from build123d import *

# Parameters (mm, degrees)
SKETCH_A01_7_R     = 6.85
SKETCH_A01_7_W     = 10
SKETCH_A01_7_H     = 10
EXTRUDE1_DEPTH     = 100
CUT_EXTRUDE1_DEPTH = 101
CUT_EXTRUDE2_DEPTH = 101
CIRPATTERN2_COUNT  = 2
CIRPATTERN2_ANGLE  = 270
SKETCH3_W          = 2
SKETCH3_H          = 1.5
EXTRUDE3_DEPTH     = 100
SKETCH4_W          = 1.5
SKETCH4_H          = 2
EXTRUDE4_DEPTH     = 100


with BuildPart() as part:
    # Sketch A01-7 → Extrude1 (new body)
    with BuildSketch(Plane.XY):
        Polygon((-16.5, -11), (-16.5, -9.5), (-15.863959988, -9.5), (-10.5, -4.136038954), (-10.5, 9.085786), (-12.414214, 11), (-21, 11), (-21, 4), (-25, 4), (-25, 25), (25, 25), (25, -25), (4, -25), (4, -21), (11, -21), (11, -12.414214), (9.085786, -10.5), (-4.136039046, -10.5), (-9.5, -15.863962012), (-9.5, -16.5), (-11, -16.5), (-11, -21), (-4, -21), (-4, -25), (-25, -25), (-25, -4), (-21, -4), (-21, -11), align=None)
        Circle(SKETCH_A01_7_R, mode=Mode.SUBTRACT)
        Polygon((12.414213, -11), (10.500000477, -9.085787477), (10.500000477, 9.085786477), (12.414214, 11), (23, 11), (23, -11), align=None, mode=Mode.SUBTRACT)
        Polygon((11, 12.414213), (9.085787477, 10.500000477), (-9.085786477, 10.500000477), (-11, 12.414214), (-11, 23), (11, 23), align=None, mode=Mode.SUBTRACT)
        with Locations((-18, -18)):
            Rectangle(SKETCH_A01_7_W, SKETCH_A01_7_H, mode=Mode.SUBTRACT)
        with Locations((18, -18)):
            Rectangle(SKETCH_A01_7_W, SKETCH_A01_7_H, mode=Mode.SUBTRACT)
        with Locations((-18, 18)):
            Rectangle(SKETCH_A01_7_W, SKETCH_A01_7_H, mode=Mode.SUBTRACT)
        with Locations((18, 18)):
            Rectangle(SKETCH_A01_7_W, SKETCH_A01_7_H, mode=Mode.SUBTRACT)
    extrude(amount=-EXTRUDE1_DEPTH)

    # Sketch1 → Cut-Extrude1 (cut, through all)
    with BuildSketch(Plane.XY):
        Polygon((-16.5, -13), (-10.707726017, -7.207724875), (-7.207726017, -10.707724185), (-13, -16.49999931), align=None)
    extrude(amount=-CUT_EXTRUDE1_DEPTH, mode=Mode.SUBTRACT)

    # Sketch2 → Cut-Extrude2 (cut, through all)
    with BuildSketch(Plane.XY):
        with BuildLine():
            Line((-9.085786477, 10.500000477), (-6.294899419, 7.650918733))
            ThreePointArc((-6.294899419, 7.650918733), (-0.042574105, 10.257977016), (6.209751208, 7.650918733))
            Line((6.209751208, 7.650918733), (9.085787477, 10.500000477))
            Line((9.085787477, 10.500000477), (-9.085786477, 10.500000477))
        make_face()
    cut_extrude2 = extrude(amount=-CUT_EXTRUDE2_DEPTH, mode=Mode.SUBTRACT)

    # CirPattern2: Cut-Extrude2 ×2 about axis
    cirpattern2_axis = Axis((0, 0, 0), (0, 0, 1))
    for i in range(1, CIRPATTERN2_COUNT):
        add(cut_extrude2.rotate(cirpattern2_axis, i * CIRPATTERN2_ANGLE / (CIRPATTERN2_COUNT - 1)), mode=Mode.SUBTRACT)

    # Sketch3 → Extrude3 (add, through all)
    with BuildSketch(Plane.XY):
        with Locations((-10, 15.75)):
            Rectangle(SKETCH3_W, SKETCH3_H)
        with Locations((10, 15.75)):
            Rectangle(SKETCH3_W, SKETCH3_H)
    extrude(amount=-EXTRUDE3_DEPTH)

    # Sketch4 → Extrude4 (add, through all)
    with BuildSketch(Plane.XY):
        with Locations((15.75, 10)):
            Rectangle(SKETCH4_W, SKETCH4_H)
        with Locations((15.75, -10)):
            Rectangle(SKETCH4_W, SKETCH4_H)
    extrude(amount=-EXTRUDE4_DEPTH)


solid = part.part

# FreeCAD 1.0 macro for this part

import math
import FreeCAD as App
import Part
import Sketcher
from FreeCAD import Vector
Q = App.Units.Quantity

doc = App.newDocument("Part")
params = doc.addObject("Spreadsheet::Sheet", "Params")
for row, (alias, value) in enumerate([
    ("sketch1_diameter", "13.7 mm"),
    ("sketch1_width", "4 mm"),
    ("sketch1_width2", "21 mm"),
    ("sketch1_width3", "7 mm"),
    ("sketch1_width4", "50 mm"),
    ("pad1_length", "100 mm"),
    ("sketch4_width", "2 mm"),
    ("sketch4_height", "1.5 mm"),
    ("pad2_length", "100 mm"),
    ("sketch5_height", "2 mm"),
    ("sketch5_width", "1.5 mm"),
    ("pad3_length", "100 mm"),
], start=1):
    params.set(f"A{row}", alias)
    params.set(f"B{row}", "=" + value)
    params.setAlias(f"B{row}", alias)

body = doc.addObject("PartDesign::Body", "Body")

sketch1 = doc.addObject("Sketcher::SketchObject", "Sketch")
body.addObject(sketch1)
sketch1.AttachmentSupport = (doc.XY_Plane, [""])
sketch1.MapMode = "FlatFace"
sketch1.addGeometry([
    Part.LineSegment(Vector(-16.5, -9.5, 0), Vector(-16.5, -11, 0)),
    Part.LineSegment(Vector(-16.5, -11, 0), Vector(-21, -11, 0)),
    Part.LineSegment(Vector(-21, -11, 0), Vector(-21, -4, 0)),
    Part.LineSegment(Vector(-21, -4, 0), Vector(-25, -4, 0)),
    Part.LineSegment(Vector(-25, -4, 0), Vector(-25, -25, 0)),
    Part.LineSegment(Vector(-25, -25, 0), Vector(-4, -25, 0)),
    Part.LineSegment(Vector(-4, -25, 0), Vector(-4, -21, 0)),
    Part.LineSegment(Vector(-4, -21, 0), Vector(-11, -21, 0)),
    Part.LineSegment(Vector(-11, -21, 0), Vector(-11, -16.5, 0)),
    Part.LineSegment(Vector(-11, -16.5, 0), Vector(-9.5, -16.5, 0)),
    Part.LineSegment(Vector(-9.5, -16.5, 0), Vector(-9.5, -15.863962, 0)),
    Part.LineSegment(Vector(-9.5, -15.863962, 0), Vector(-4.136039, -10.5, 0)),
    Part.LineSegment(Vector(-4.136039, -10.5, 0), Vector(9.085786, -10.5, 0)),
    Part.LineSegment(Vector(9.085786, -10.5, 0), Vector(11, -12.414214, 0)),
    Part.LineSegment(Vector(11, -12.414214, 0), Vector(11, -21, 0)),
    Part.LineSegment(Vector(11, -21, 0), Vector(4, -21, 0)),
    Part.LineSegment(Vector(4, -21, 0), Vector(4, -25, 0)),
    Part.LineSegment(Vector(4, -25, 0), Vector(25, -25, 0)),
    Part.LineSegment(Vector(25, -25, 0), Vector(25, 25, 0)),
    Part.LineSegment(Vector(25, 25, 0), Vector(-25, 25, 0)),
    Part.LineSegment(Vector(-25, 25, 0), Vector(-25, 4, 0)),
    Part.LineSegment(Vector(-25, 4, 0), Vector(-21, 4, 0)),
    Part.LineSegment(Vector(-21, 4, 0), Vector(-21, 11, 0)),
    Part.LineSegment(Vector(-21, 11, 0), Vector(-12.414214, 11, 0)),
    Part.LineSegment(Vector(-12.414214, 11, 0), Vector(-10.5, 9.085786, 0)),
    Part.LineSegment(Vector(-10.5, 9.085786, 0), Vector(-10.5, -4.136039, 0)),
    Part.LineSegment(Vector(-10.5, -4.136039, 0), Vector(-15.86396, -9.5, 0)),
    Part.LineSegment(Vector(-15.86396, -9.5, 0), Vector(-16.5, -9.5, 0)),
    Part.LineSegment(Vector(13, -23, 0), Vector(13, -13, 0)),
    Part.LineSegment(Vector(13, -13, 0), Vector(23, -13, 0)),
    Part.LineSegment(Vector(23, -13, 0), Vector(23, -23, 0)),
    Part.LineSegment(Vector(23, -23, 0), Vector(13, -23, 0)),
    Part.LineSegment(Vector(-23, -23, 0), Vector(-23, -13, 0)),
    Part.LineSegment(Vector(-23, -13, 0), Vector(-13, -13, 0)),
    Part.LineSegment(Vector(-13, -13, 0), Vector(-13, -23, 0)),
    Part.LineSegment(Vector(-13, -23, 0), Vector(-23, -23, 0)),
    Part.LineSegment(Vector(12.414213, -11, 0), Vector(10.5, -9.085787, 0)),
    Part.LineSegment(Vector(10.5, -9.085787, 0), Vector(10.5, 9.085786, 0)),
    Part.LineSegment(Vector(10.5, 9.085786, 0), Vector(12.414214, 11, 0)),
    Part.LineSegment(Vector(12.414214, 11, 0), Vector(23, 11, 0)),
    Part.LineSegment(Vector(23, 11, 0), Vector(23, -11, 0)),
    Part.LineSegment(Vector(23, -11, 0), Vector(12.414213, -11, 0)),
    Part.LineSegment(Vector(13, 13, 0), Vector(13, 23, 0)),
    Part.LineSegment(Vector(13, 23, 0), Vector(23, 23, 0)),
    Part.LineSegment(Vector(23, 23, 0), Vector(23, 13, 0)),
    Part.LineSegment(Vector(23, 13, 0), Vector(13, 13, 0)),
    Part.Circle(Vector(0, 0, 0), Vector(0, 0, 1), 6.85),
    Part.LineSegment(Vector(11, 12.414213, 0), Vector(9.085787, 10.5, 0)),
    Part.LineSegment(Vector(9.085787, 10.5, 0), Vector(-9.085786, 10.5, 0)),
    Part.LineSegment(Vector(-9.085786, 10.5, 0), Vector(-11, 12.414214, 0)),
    Part.LineSegment(Vector(-11, 12.414214, 0), Vector(-11, 23, 0)),
    Part.LineSegment(Vector(-11, 23, 0), Vector(11, 23, 0)),
    Part.LineSegment(Vector(11, 23, 0), Vector(11, 12.414213, 0)),
    Part.LineSegment(Vector(-23, 13, 0), Vector(-23, 23, 0)),
    Part.LineSegment(Vector(-23, 23, 0), Vector(-13, 23, 0)),
    Part.LineSegment(Vector(-13, 23, 0), Vector(-13, 13, 0)),
    Part.LineSegment(Vector(-13, 13, 0), Vector(-23, 13, 0)),
], False)
sketch1.addConstraint([
    Sketcher.Constraint("Coincident", 0, 2, 1, 1),
    Sketcher.Constraint("Coincident", 1, 2, 2, 1),
    Sketcher.Constraint("Coincident", 2, 2, 3, 1),
    Sketcher.Constraint("Coincident", 3, 2, 4, 1),
    Sketcher.Constraint("Coincident", 4, 2, 5, 1),
    Sketcher.Constraint("Coincident", 5, 2, 6, 1),
    Sketcher.Constraint("Coincident", 6, 2, 7, 1),
    Sketcher.Constraint("Coincident", 7, 2, 8, 1),
    Sketcher.Constraint("Coincident", 8, 2, 9, 1),
    Sketcher.Constraint("Coincident", 9, 2, 10, 1),
    Sketcher.Constraint("Coincident", 10, 2, 11, 1),
    Sketcher.Constraint("Coincident", 11, 2, 12, 1),
    Sketcher.Constraint("Coincident", 12, 2, 13, 1),
    Sketcher.Constraint("Coincident", 13, 2, 14, 1),
    Sketcher.Constraint("Coincident", 14, 2, 15, 1),
    Sketcher.Constraint("Coincident", 15, 2, 16, 1),
    Sketcher.Constraint("Coincident", 16, 2, 17, 1),
    Sketcher.Constraint("Coincident", 17, 2, 18, 1),
    Sketcher.Constraint("Coincident", 18, 2, 19, 1),
    Sketcher.Constraint("Coincident", 19, 2, 20, 1),
    Sketcher.Constraint("Coincident", 20, 2, 21, 1),
    Sketcher.Constraint("Coincident", 21, 2, 22, 1),
    Sketcher.Constraint("Coincident", 22, 2, 23, 1),
    Sketcher.Constraint("Coincident", 23, 2, 24, 1),
    Sketcher.Constraint("Coincident", 24, 2, 25, 1),
    Sketcher.Constraint("Coincident", 25, 2, 26, 1),
    Sketcher.Constraint("Coincident", 26, 2, 27, 1),
    Sketcher.Constraint("Coincident", 27, 2, 0, 1),
    Sketcher.Constraint("Coincident", 28, 2, 29, 1),
    Sketcher.Constraint("Coincident", 29, 2, 30, 1),
    Sketcher.Constraint("Coincident", 30, 2, 31, 1),
    Sketcher.Constraint("Coincident", 31, 2, 28, 1),
    Sketcher.Constraint("Coincident", 32, 2, 33, 1),
    Sketcher.Constraint("Coincident", 33, 2, 34, 1),
    Sketcher.Constraint("Coincident", 34, 2, 35, 1),
    Sketcher.Constraint("Coincident", 35, 2, 32, 1),
    Sketcher.Constraint("Coincident", 36, 2, 37, 1),
    Sketcher.Constraint("Coincident", 37, 2, 38, 1),
    Sketcher.Constraint("Coincident", 38, 2, 39, 1),
    Sketcher.Constraint("Coincident", 39, 2, 40, 1),
    Sketcher.Constraint("Coincident", 40, 2, 41, 1),
    Sketcher.Constraint("Coincident", 41, 2, 36, 1),
    Sketcher.Constraint("Coincident", 42, 2, 43, 1),
    Sketcher.Constraint("Coincident", 43, 2, 44, 1),
    Sketcher.Constraint("Coincident", 44, 2, 45, 1),
    Sketcher.Constraint("Coincident", 45, 2, 42, 1),
    Sketcher.Constraint("Coincident", 47, 2, 48, 1),
    Sketcher.Constraint("Coincident", 48, 2, 49, 1),
    Sketcher.Constraint("Coincident", 49, 2, 50, 1),
    Sketcher.Constraint("Coincident", 50, 2, 51, 1),
    Sketcher.Constraint("Coincident", 51, 2, 52, 1),
    Sketcher.Constraint("Coincident", 52, 2, 47, 1),
    Sketcher.Constraint("Coincident", 53, 2, 54, 1),
    Sketcher.Constraint("Coincident", 54, 2, 55, 1),
    Sketcher.Constraint("Coincident", 55, 2, 56, 1),
    Sketcher.Constraint("Coincident", 56, 2, 53, 1),
    Sketcher.Constraint("Vertical", 0),
    Sketcher.Constraint("Horizontal", 1),
    Sketcher.Constraint("Vertical", 2),
    Sketcher.Constraint("Horizontal", 3),
    Sketcher.Constraint("Vertical", 4),
    Sketcher.Constraint("Horizontal", 5),
    Sketcher.Constraint("Vertical", 6),
    Sketcher.Constraint("Horizontal", 7),
    Sketcher.Constraint("Vertical", 8),
    Sketcher.Constraint("Horizontal", 9),
    Sketcher.Constraint("Vertical", 10),
    Sketcher.Constraint("Horizontal", 12),
    Sketcher.Constraint("Vertical", 14),
    Sketcher.Constraint("Horizontal", 15),
    Sketcher.Constraint("Vertical", 16),
    Sketcher.Constraint("Horizontal", 17),
    Sketcher.Constraint("Vertical", 18),
    Sketcher.Constraint("Horizontal", 19),
    Sketcher.Constraint("Vertical", 20),
    Sketcher.Constraint("Horizontal", 21),
    Sketcher.Constraint("Vertical", 22),
    Sketcher.Constraint("Horizontal", 23),
    Sketcher.Constraint("Vertical", 25),
    Sketcher.Constraint("Horizontal", 27),
    Sketcher.Constraint("Vertical", 28),
    Sketcher.Constraint("Horizontal", 29),
    Sketcher.Constraint("Vertical", 30),
    Sketcher.Constraint("Horizontal", 31),
    Sketcher.Constraint("Vertical", 32),
    Sketcher.Constraint("Horizontal", 33),
    Sketcher.Constraint("Vertical", 34),
    Sketcher.Constraint("Horizontal", 35),
    Sketcher.Constraint("Vertical", 37),
    Sketcher.Constraint("Horizontal", 39),
    Sketcher.Constraint("Vertical", 40),
    Sketcher.Constraint("Horizontal", 41),
    Sketcher.Constraint("Vertical", 42),
    Sketcher.Constraint("Horizontal", 43),
    Sketcher.Constraint("Vertical", 44),
    Sketcher.Constraint("Horizontal", 45),
    Sketcher.Constraint("Horizontal", 48),
    Sketcher.Constraint("Vertical", 50),
    Sketcher.Constraint("Horizontal", 51),
    Sketcher.Constraint("Vertical", 52),
    Sketcher.Constraint("Vertical", 53),
    Sketcher.Constraint("Horizontal", 54),
    Sketcher.Constraint("Vertical", 55),
    Sketcher.Constraint("Horizontal", 56),
    Sketcher.Constraint("Coincident", 46, 3, -1, 1),
    Sketcher.Constraint("Symmetric", 4, 2, 18, 2, -1, 1),
    Sketcher.Constraint("Symmetric", 17, 2, 19, 2, -1, 1),
    Sketcher.Constraint("Symmetric", 24, 2, 36, 2, -1, 1),
    Sketcher.Constraint("Symmetric", 23, 2, 41, 2, -1, 1),
    Sketcher.Constraint("Symmetric", 34, 2, 42, 2, -1, 1),
    Sketcher.Constraint("Symmetric", 32, 2, 44, 2, -1, 1),
    Sketcher.Constraint("Symmetric", 12, 2, 48, 2, -1, 1),
    Sketcher.Constraint("Symmetric", 13, 2, 49, 2, -1, 1),
    Sketcher.Constraint("Symmetric", 30, 2, 53, 2, -1, 1),
    Sketcher.Constraint("Symmetric", 28, 2, 55, 2, -1, 1),
    Sketcher.Constraint("Symmetric", 7, 2, 14, 2, -2),
    Sketcher.Constraint("Symmetric", 29, 2, 32, 2, -2),
    Sketcher.Constraint("Symmetric", 31, 2, 34, 2, -2),
    Sketcher.Constraint("Symmetric", 23, 2, 38, 2, -2),
    Sketcher.Constraint("Symmetric", 49, 2, 52, 2, -2),
    Sketcher.Constraint("Symmetric", 2, 2, 21, 2, -1),
    Sketcher.Constraint("Perpendicular", 11, 13),
    Sketcher.Constraint("Parallel", 13, 24),
    Sketcher.Constraint("Perpendicular", 24, 26),
    Sketcher.Constraint("Perpendicular", 36, 38),
    Sketcher.Constraint("Parallel", 38, 47),
    Sketcher.Constraint("Horizontal", 24, 2, 37, 2),
    Sketcher.Constraint("Horizontal", 1, 2, 40, 2),
    Sketcher.Constraint("Horizontal", 43, 2, 50, 2),
    Sketcher.Constraint("Vertical", 30, 2, 39, 2),
    Sketcher.Constraint("Equal", 7, 15),
    Sketcher.Constraint("Equal", 9, 0),
    Sketcher.Constraint("Equal", 15, 2),
    Sketcher.Constraint("Equal", 17, 4),
    Sketcher.Constraint("Equal", 21, 6),
    Sketcher.Constraint("Equal", 1, 8),
    Sketcher.Constraint("Equal", 23, 14),
    Sketcher.Constraint("Equal", 19, 18),
    Sketcher.Constraint("Equal", 12, 25),
    Sketcher.Constraint("Equal", 56, 28),
    Sketcher.Constraint("Equal", 48, 37),
    Sketcher.Constraint("Equal", 41, 50),
    Sketcher.Constraint("Diameter", 46, Q("13.7 mm")),
    Sketcher.Constraint("DistanceX", 3, 2, 3, 1, Q("4 mm")),
    Sketcher.Constraint("DistanceX", 5, 1, 5, 2, Q("21 mm")),
    Sketcher.Constraint("DistanceX", 7, 2, 7, 1, Q("7 mm")),
    Sketcher.Constraint("DistanceX", 19, 2, 19, 1, Q("50 mm")),
    Sketcher.Constraint("DistanceX", 29, 1, 29, 2, Q("10 mm")),
    Sketcher.Constraint("DistanceX", 1, 2, 1, 1, Q("4.5 mm")),
    Sketcher.Constraint("DistanceX", 9, 1, 9, 2, Q("1.5 mm")),
    Sketcher.Constraint("DistanceX", -1, 1, 28, 2, Q("13 mm")),
    Sketcher.Constraint("DistanceY", 9, 2, 11, 2, Q("6 mm")),
    Sketcher.Constraint("DistanceX", 27, 2, 27, 1, Q("0.63604 mm")),
    Sketcher.Constraint("DistanceX", 12, 1, 12, 2, Q("13.221825 mm")),
])
sketch1.setExpression("Constraints[142]", "Params.sketch1_diameter")
sketch1.setExpression("Constraints[143]", "Params.sketch1_width")
sketch1.setExpression("Constraints[144]", "Params.sketch1_width2")
sketch1.setExpression("Constraints[145]", "Params.sketch1_width3")
sketch1.setExpression("Constraints[146]", "Params.sketch1_width4")
pad1 = doc.addObject("PartDesign::Pad", "Pad")
body.addObject(pad1)
pad1.Profile = sketch1
pad1.setExpression("Length", "Params.pad1_length")
pad1.Reversed = True

sketch2 = doc.addObject("Sketcher::SketchObject", "Sketch001")
body.addObject(sketch2)
sketch2.AttachmentSupport = (doc.XY_Plane, [""])
sketch2.MapMode = "FlatFace"
sketch2.addGeometry([
    Part.LineSegment(Vector(-10.707726, -7.207725, 0), Vector(-16.5, -13, 0)),
    Part.LineSegment(Vector(-16.5, -13, 0), Vector(-13, -16.499999, 0)),
    Part.LineSegment(Vector(-13, -16.499999, 0), Vector(-7.207726, -10.707724, 0)),
    Part.LineSegment(Vector(-7.207726, -10.707724, 0), Vector(-10.707726, -7.207725, 0)),
], False)
sketch2.addConstraint([
    Sketcher.Constraint("Coincident", 0, 2, 1, 1),
    Sketcher.Constraint("Coincident", 1, 2, 2, 1),
    Sketcher.Constraint("Coincident", 2, 2, 3, 1),
    Sketcher.Constraint("Coincident", 3, 2, 0, 1),
    Sketcher.Constraint("Perpendicular", 0, 1),
    Sketcher.Constraint("Perpendicular", 1, 2),
    Sketcher.Constraint("Perpendicular", 2, 3),
    Sketcher.Constraint("Angle", 0, Q("-134.999994 deg")),
    Sketcher.Constraint("DistanceY", 0, 2, -1, 1, Q("13 mm")),
    Sketcher.Constraint("DistanceX", 1, 2, -1, 1, Q("13 mm")),
    Sketcher.Constraint("DistanceX", 0, 2, -1, 1, Q("16.5 mm")),
    Sketcher.Constraint("Distance", 0, Q("8.191513 mm")),
])
pocket1 = doc.addObject("PartDesign::Pocket", "Pocket")
body.addObject(pocket1)
pocket1.Profile = sketch2
pocket1.Type = "ThroughAll"

sketch3 = doc.addObject("Sketcher::SketchObject", "Sketch002")
body.addObject(sketch3)
sketch3.AttachmentSupport = (doc.XY_Plane, [""])
sketch3.MapMode = "FlatFace"
sketch3.addGeometry([
    Part.LineSegment(Vector(-9.085786, 10.5, 0), Vector(-6.294899, 7.650919, 0)),
    Part.ArcOfCircle(Part.Circle(Vector(-0.042574, 1.457191, 0), Vector(0, 0, 1), 8.800786), math.radians(44.730247), math.radians(135.269753)),
    Part.LineSegment(Vector(6.209751, 7.650919, 0), Vector(9.085787, 10.5, 0)),
    Part.LineSegment(Vector(9.085787, 10.5, 0), Vector(-9.085786, 10.5, 0)),
], False)
sketch3.addConstraint([
    Sketcher.Constraint("Coincident", 0, 2, 1, 2),
    Sketcher.Constraint("Coincident", 1, 1, 2, 1),
    Sketcher.Constraint("Coincident", 2, 2, 3, 1),
    Sketcher.Constraint("Coincident", 3, 2, 0, 1),
    Sketcher.Constraint("Horizontal", 3),
    Sketcher.Constraint("Horizontal", 0, 2, 1, 1),
    Sketcher.Constraint("DistanceY", -1, 1, 2, 2, Q("10.5 mm")),
    Sketcher.Constraint("Radius", 1, Q("8.800786 mm")),
    Sketcher.Constraint("DistanceX", 0, 2, -1, 1, Q("6.294899 mm")),
    Sketcher.Constraint("DistanceX", 3, 2, 3, 1, Q("18.171574 mm")),
    Sketcher.Constraint("DistanceY", -1, 1, 1, 3, Q("1.457191 mm")),
    Sketcher.Constraint("DistanceY", -1, 1, 0, 2, Q("7.650919 mm")),
    Sketcher.Constraint("DistanceX", 1, 3, 2, 2, Q("9.128362 mm")),
])
pocket2 = doc.addObject("PartDesign::Pocket", "Pocket001")
body.addObject(pocket2)
pocket2.Profile = sketch3
pocket2.Type = "ThroughAll"
doc.recompute()

polarpattern = doc.addObject("PartDesign::PolarPattern", "PolarPattern")
body.addObject(polarpattern)
polarpattern.Originals = [pocket2]
polarpattern.Axis = (doc.Z_Axis, [""])
polarpattern.Angle = 270
polarpattern.Occurrences = 2
body.Tip = polarpattern

sketch4 = doc.addObject("Sketcher::SketchObject", "Sketch003")
body.addObject(sketch4)
sketch4.AttachmentSupport = (doc.XY_Plane, [""])
sketch4.MapMode = "FlatFace"
sketch4.addGeometry([
    Part.LineSegment(Vector(-11, 16.5, 0), Vector(-11, 15, 0)),
    Part.LineSegment(Vector(-11, 15, 0), Vector(-9, 15, 0)),
    Part.LineSegment(Vector(-9, 15, 0), Vector(-9, 16.5, 0)),
    Part.LineSegment(Vector(-9, 16.5, 0), Vector(-11, 16.5, 0)),
    Part.LineSegment(Vector(9, 16.5, 0), Vector(9, 15, 0)),
    Part.LineSegment(Vector(9, 15, 0), Vector(11, 15, 0)),
    Part.LineSegment(Vector(11, 15, 0), Vector(11, 16.5, 0)),
    Part.LineSegment(Vector(11, 16.5, 0), Vector(9, 16.5, 0)),
], False)
sketch4.addConstraint([
    Sketcher.Constraint("Coincident", 0, 2, 1, 1),
    Sketcher.Constraint("Coincident", 1, 2, 2, 1),
    Sketcher.Constraint("Coincident", 2, 2, 3, 1),
    Sketcher.Constraint("Coincident", 3, 2, 0, 1),
    Sketcher.Constraint("Coincident", 4, 2, 5, 1),
    Sketcher.Constraint("Coincident", 5, 2, 6, 1),
    Sketcher.Constraint("Coincident", 6, 2, 7, 1),
    Sketcher.Constraint("Coincident", 7, 2, 4, 1),
    Sketcher.Constraint("Vertical", 0),
    Sketcher.Constraint("Horizontal", 1),
    Sketcher.Constraint("Vertical", 2),
    Sketcher.Constraint("Horizontal", 3),
    Sketcher.Constraint("Vertical", 4),
    Sketcher.Constraint("Horizontal", 5),
    Sketcher.Constraint("Vertical", 6),
    Sketcher.Constraint("Horizontal", 7),
    Sketcher.Constraint("Symmetric", 1, 2, 4, 2, -2),
    Sketcher.Constraint("Symmetric", 3, 2, 6, 2, -2),
    Sketcher.Constraint("DistanceX", 1, 1, 1, 2, Q("2 mm")),
    Sketcher.Constraint("DistanceY", 0, 2, 0, 1, Q("1.5 mm")),
    Sketcher.Constraint("DistanceX", 0, 2, -1, 1, Q("11 mm")),
    Sketcher.Constraint("DistanceY", -1, 1, 0, 2, Q("15 mm")),
])
sketch4.setExpression("Constraints[18]", "Params.sketch4_width")
sketch4.setExpression("Constraints[19]", "Params.sketch4_height")
pad2 = doc.addObject("PartDesign::Pad", "Pad001")
body.addObject(pad2)
pad2.Profile = sketch4
pad2.setExpression("Length", "Params.pad2_length")
pad2.Reversed = True

sketch5 = doc.addObject("Sketcher::SketchObject", "Sketch004")
body.addObject(sketch5)
sketch5.AttachmentSupport = (doc.XY_Plane, [""])
sketch5.MapMode = "FlatFace"
sketch5.addGeometry([
    Part.LineSegment(Vector(15, 11, 0), Vector(15, 9, 0)),
    Part.LineSegment(Vector(15, 9, 0), Vector(16.5, 9, 0)),
    Part.LineSegment(Vector(16.5, 9, 0), Vector(16.5, 11, 0)),
    Part.LineSegment(Vector(16.5, 11, 0), Vector(15, 11, 0)),
    Part.LineSegment(Vector(15, -9, 0), Vector(15, -11, 0)),
    Part.LineSegment(Vector(15, -11, 0), Vector(16.5, -11, 0)),
    Part.LineSegment(Vector(16.5, -11, 0), Vector(16.5, -9, 0)),
    Part.LineSegment(Vector(16.5, -9, 0), Vector(15, -9, 0)),
], False)
sketch5.addConstraint([
    Sketcher.Constraint("Coincident", 0, 2, 1, 1),
    Sketcher.Constraint("Coincident", 1, 2, 2, 1),
    Sketcher.Constraint("Coincident", 2, 2, 3, 1),
    Sketcher.Constraint("Coincident", 3, 2, 0, 1),
    Sketcher.Constraint("Coincident", 4, 2, 5, 1),
    Sketcher.Constraint("Coincident", 5, 2, 6, 1),
    Sketcher.Constraint("Coincident", 6, 2, 7, 1),
    Sketcher.Constraint("Coincident", 7, 2, 4, 1),
    Sketcher.Constraint("Vertical", 0),
    Sketcher.Constraint("Horizontal", 1),
    Sketcher.Constraint("Vertical", 2),
    Sketcher.Constraint("Horizontal", 3),
    Sketcher.Constraint("Vertical", 4),
    Sketcher.Constraint("Horizontal", 5),
    Sketcher.Constraint("Vertical", 6),
    Sketcher.Constraint("Horizontal", 7),
    Sketcher.Constraint("Symmetric", 3, 2, 4, 2, -1),
    Sketcher.Constraint("Symmetric", 1, 2, 6, 2, -1),
    Sketcher.Constraint("DistanceY", 0, 2, 0, 1, Q("2 mm")),
    Sketcher.Constraint("DistanceX", 1, 1, 1, 2, Q("1.5 mm")),
    Sketcher.Constraint("DistanceX", -1, 1, 0, 2, Q("15 mm")),
    Sketcher.Constraint("DistanceY", -1, 1, 0, 2, Q("9 mm")),
])
sketch5.setExpression("Constraints[18]", "Params.sketch5_height")
sketch5.setExpression("Constraints[19]", "Params.sketch5_width")
pad3 = doc.addObject("PartDesign::Pad", "Pad002")
body.addObject(pad3)
pad3.Profile = sketch5
pad3.setExpression("Length", "Params.pad3_length")
pad3.Reversed = True

doc.recompute()
